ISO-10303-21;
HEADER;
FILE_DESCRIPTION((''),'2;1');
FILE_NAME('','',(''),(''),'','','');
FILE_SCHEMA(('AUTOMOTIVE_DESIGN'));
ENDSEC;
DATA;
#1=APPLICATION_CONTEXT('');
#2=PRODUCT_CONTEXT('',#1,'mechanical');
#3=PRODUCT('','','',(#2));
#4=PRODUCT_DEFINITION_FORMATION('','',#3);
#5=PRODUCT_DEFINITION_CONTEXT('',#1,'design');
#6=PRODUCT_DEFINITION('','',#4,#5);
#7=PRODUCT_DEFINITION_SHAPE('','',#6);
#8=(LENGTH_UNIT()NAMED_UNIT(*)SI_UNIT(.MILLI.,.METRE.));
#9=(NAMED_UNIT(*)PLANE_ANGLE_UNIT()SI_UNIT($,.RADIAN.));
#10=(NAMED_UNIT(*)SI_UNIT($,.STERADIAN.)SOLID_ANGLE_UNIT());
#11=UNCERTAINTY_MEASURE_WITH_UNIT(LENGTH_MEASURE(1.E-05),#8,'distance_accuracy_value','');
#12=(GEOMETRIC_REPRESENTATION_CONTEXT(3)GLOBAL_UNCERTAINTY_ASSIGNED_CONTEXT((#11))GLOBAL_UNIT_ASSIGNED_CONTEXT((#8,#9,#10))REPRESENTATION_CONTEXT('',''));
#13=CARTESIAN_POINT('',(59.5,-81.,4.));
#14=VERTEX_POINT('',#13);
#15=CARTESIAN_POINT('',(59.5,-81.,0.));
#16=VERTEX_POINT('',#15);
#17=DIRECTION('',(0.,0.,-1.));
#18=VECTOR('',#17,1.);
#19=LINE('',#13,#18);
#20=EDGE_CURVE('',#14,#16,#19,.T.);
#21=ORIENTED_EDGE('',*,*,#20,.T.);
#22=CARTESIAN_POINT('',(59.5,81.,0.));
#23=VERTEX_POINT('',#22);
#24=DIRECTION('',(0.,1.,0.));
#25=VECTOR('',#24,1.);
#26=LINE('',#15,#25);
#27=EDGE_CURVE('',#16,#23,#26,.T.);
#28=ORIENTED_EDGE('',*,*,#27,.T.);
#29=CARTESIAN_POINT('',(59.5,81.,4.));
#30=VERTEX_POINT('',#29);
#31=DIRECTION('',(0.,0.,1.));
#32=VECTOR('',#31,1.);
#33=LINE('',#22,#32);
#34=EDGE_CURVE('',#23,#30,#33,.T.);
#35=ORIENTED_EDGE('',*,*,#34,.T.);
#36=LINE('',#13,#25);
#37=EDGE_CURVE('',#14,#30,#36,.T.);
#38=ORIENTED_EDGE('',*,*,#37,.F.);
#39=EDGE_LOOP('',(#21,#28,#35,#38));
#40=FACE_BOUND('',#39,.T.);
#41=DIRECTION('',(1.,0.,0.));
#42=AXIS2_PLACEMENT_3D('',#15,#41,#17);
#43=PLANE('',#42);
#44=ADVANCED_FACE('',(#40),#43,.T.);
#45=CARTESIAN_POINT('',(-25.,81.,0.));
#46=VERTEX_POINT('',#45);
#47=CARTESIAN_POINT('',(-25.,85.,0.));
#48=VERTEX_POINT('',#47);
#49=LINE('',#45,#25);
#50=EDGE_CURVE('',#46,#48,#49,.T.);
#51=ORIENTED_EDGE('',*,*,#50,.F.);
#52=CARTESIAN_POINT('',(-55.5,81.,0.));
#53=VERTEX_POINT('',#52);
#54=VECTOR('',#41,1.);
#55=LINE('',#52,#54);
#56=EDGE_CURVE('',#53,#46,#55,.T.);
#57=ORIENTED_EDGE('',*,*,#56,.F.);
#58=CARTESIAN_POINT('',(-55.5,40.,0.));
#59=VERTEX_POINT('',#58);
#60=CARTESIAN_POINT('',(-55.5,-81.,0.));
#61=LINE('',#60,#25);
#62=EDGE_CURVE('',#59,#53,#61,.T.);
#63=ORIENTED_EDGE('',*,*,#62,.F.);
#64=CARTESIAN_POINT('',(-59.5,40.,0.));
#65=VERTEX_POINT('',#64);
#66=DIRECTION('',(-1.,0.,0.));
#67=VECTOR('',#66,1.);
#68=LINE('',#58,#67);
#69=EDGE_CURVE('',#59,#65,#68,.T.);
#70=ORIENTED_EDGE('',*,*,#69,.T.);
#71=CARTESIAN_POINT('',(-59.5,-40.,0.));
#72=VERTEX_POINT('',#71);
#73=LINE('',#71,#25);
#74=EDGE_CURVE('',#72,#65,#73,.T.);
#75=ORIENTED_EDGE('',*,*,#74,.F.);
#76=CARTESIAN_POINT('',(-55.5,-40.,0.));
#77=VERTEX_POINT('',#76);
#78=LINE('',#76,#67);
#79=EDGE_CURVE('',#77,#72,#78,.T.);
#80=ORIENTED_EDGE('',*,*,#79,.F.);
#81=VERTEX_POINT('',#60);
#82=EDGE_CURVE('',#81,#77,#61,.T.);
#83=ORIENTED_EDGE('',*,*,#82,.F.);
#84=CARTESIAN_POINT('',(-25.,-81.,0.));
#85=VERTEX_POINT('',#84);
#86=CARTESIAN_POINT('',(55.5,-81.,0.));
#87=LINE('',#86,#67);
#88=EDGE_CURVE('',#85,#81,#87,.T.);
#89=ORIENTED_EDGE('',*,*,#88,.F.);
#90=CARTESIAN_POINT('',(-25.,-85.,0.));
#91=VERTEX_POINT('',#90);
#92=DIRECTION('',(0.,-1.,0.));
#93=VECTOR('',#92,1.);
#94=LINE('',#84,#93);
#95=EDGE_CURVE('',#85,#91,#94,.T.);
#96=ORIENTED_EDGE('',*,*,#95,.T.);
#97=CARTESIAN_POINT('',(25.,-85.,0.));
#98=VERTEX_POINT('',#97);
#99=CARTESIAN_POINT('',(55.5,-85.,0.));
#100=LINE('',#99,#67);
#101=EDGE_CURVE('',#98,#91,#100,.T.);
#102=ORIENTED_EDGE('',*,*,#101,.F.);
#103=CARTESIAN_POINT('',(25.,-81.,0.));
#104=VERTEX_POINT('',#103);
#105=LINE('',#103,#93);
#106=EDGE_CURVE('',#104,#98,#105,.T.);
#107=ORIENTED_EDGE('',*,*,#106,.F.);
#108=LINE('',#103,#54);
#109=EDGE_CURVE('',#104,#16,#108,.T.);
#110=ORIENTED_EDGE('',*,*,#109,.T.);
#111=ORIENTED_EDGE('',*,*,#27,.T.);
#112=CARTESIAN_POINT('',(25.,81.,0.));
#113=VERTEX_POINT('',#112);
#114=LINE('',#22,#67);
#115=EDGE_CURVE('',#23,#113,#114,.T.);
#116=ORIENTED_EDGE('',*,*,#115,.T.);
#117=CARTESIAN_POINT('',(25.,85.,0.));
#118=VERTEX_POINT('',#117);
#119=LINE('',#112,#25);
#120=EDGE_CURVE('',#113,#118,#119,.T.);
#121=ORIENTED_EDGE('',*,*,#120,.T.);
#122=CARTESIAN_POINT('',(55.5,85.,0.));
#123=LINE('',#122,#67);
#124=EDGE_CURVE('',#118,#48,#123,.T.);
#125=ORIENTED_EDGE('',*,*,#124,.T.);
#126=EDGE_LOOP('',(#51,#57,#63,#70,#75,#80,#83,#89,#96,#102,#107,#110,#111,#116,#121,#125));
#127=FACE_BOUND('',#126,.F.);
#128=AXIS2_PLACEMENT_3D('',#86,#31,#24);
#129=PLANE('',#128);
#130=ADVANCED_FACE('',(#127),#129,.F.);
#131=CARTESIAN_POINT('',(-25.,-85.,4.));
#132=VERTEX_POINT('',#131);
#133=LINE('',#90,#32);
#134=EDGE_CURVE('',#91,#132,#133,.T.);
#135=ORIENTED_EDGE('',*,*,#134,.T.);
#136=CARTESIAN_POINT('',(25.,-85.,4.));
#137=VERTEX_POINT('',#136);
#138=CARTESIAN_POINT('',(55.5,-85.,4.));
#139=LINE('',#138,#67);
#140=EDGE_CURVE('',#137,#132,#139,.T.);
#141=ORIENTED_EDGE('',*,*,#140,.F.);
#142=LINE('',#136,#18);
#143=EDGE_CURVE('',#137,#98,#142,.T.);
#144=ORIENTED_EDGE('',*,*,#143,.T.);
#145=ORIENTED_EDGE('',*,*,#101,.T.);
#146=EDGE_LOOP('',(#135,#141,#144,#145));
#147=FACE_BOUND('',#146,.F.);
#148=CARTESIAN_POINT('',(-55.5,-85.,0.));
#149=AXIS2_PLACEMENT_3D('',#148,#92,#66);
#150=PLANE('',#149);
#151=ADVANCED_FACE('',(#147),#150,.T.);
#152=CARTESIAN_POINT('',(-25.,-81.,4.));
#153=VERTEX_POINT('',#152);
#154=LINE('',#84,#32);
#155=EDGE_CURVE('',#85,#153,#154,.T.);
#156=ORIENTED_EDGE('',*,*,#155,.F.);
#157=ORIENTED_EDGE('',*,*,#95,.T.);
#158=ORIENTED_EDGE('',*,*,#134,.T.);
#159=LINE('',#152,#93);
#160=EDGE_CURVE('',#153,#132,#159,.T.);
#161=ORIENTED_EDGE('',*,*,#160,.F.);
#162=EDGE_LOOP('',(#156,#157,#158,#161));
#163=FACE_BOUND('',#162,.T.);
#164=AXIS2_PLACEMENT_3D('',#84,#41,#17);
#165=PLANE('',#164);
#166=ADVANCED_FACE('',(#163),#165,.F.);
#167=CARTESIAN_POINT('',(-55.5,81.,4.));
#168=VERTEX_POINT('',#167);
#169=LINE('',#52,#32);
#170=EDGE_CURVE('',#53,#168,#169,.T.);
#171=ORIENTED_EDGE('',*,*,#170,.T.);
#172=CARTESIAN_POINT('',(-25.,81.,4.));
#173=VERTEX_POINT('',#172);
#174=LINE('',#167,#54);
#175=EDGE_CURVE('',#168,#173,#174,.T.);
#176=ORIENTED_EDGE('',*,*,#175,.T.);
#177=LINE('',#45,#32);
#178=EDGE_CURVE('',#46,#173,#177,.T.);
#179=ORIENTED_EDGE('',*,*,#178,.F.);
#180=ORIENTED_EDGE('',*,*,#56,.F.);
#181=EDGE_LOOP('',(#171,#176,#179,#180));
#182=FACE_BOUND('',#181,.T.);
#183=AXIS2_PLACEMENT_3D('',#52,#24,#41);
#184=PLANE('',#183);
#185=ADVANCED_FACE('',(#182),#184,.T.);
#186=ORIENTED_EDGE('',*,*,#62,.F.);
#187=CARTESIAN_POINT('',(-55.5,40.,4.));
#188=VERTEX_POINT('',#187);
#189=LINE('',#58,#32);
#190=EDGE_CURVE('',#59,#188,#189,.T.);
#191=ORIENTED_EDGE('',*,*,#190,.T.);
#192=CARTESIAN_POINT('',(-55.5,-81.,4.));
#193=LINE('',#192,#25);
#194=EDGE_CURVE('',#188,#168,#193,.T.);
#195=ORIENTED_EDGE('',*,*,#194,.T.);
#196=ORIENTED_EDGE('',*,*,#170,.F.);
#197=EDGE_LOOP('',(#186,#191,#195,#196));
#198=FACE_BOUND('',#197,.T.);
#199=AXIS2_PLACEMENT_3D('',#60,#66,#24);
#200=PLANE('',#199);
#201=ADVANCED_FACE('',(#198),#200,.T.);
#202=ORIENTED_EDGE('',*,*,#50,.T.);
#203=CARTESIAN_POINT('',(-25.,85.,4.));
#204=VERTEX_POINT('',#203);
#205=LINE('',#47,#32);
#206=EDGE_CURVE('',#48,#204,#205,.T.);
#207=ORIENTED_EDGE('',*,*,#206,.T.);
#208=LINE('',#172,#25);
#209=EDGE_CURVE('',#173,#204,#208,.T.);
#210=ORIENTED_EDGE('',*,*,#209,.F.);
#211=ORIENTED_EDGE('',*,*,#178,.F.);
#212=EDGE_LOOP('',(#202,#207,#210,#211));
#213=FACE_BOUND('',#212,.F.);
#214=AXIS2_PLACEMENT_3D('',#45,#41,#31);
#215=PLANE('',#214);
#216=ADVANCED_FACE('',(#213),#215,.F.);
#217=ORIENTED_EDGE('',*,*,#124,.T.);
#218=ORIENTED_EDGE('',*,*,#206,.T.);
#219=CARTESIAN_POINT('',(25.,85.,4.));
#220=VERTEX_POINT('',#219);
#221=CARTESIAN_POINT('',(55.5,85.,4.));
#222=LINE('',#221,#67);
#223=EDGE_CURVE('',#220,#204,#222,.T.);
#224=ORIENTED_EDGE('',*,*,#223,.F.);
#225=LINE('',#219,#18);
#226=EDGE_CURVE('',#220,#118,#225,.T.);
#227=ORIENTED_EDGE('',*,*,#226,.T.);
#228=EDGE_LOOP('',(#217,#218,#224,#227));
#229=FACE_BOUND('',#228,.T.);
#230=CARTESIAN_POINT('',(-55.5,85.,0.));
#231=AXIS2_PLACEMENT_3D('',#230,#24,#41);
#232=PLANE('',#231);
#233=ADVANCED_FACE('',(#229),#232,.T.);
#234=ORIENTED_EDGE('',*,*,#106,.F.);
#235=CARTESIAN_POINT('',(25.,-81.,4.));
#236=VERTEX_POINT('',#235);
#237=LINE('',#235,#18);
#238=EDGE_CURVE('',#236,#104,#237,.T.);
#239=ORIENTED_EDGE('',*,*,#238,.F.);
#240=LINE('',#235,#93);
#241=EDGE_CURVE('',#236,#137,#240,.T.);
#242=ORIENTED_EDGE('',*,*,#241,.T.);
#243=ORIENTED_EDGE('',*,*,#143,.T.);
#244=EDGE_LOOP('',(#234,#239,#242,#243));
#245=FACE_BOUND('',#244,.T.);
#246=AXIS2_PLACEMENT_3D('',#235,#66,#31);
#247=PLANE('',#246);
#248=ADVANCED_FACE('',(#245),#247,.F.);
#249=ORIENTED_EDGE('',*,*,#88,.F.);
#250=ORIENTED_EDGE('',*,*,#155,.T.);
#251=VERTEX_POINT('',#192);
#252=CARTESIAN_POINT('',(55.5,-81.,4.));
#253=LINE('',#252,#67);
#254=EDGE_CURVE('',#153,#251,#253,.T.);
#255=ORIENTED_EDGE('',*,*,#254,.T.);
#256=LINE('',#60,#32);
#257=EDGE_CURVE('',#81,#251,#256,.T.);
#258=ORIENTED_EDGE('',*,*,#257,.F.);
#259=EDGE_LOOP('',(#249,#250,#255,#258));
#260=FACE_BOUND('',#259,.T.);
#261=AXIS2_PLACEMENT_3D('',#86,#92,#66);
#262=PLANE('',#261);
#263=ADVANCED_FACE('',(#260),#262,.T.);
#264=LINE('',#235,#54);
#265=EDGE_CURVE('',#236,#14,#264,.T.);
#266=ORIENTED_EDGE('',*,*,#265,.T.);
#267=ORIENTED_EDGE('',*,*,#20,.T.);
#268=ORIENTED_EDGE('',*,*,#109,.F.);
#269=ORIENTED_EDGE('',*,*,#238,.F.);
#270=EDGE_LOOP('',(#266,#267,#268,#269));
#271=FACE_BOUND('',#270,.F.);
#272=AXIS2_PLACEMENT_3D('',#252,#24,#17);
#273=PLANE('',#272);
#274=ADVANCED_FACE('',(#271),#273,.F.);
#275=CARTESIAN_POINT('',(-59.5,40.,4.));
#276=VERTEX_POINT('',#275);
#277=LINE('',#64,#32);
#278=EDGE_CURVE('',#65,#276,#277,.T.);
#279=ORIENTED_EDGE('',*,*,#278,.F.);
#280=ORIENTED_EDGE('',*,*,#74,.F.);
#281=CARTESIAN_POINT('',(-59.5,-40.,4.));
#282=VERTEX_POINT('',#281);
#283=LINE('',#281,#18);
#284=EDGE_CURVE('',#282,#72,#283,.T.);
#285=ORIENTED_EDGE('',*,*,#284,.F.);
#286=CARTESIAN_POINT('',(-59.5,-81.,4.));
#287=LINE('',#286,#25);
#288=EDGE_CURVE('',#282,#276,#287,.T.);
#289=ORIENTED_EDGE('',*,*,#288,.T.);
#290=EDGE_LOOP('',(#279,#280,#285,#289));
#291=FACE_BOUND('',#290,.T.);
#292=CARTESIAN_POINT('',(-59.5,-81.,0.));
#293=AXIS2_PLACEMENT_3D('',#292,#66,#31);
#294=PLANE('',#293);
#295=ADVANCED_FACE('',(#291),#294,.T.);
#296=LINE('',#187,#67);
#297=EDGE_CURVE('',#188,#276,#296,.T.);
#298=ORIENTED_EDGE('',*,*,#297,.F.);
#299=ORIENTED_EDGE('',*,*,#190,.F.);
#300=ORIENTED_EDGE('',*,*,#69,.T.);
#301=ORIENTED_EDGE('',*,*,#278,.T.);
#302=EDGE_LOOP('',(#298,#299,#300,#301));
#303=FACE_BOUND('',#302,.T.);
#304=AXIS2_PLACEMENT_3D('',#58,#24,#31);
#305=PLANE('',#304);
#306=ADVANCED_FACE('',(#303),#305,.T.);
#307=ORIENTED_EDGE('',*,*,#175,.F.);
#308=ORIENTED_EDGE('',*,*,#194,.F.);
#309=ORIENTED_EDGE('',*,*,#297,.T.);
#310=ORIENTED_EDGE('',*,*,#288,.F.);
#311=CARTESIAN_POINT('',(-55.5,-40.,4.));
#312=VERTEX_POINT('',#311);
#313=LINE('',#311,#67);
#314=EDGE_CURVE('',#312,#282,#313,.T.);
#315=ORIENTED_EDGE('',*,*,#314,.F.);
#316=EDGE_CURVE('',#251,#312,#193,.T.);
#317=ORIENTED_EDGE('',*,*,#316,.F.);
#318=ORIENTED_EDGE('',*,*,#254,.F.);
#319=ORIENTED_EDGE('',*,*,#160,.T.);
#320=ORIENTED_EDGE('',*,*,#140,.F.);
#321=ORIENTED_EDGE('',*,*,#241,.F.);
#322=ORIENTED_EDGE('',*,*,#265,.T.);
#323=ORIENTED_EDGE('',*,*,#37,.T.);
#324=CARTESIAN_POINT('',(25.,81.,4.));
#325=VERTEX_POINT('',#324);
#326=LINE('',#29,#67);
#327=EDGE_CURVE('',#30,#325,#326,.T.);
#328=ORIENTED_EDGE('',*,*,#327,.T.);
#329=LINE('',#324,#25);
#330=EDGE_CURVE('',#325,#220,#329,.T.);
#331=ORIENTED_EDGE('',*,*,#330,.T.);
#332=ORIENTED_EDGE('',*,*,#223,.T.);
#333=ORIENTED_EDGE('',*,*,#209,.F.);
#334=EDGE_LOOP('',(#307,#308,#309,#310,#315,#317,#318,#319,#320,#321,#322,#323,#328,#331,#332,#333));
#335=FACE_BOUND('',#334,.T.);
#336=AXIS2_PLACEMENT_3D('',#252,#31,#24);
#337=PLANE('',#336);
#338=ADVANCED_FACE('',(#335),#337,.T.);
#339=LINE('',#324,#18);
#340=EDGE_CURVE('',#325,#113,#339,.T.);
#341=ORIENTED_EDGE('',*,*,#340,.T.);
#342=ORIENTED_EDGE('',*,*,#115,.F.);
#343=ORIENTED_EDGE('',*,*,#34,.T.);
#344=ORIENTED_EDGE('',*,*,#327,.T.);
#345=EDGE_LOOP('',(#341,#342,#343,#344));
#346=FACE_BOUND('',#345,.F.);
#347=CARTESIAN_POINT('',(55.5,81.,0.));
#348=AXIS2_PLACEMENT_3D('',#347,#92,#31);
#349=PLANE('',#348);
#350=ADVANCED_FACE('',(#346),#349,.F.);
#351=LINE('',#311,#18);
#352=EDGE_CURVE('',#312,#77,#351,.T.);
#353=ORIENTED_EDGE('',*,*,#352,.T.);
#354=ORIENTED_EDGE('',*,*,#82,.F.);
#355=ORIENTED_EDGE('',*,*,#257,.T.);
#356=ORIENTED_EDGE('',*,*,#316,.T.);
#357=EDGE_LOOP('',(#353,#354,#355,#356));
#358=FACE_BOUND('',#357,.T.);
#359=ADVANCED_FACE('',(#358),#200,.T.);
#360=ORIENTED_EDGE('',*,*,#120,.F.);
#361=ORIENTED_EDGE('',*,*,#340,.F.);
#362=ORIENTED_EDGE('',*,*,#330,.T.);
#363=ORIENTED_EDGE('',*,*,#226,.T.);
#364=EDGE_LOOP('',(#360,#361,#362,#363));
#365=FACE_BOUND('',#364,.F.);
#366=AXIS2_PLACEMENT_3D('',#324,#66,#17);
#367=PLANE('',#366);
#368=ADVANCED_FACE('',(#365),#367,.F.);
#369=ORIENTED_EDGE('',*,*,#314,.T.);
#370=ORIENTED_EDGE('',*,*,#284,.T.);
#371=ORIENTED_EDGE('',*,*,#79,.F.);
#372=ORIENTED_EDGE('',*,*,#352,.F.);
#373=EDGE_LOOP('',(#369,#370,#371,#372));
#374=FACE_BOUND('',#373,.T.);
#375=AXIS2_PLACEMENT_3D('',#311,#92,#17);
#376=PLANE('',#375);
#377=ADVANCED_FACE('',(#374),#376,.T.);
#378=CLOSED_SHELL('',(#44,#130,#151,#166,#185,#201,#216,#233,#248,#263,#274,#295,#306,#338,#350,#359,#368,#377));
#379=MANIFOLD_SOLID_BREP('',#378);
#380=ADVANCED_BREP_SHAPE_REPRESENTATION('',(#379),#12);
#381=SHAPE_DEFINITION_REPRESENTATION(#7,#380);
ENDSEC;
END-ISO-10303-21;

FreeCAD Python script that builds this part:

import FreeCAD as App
import Part
import Sketcher
from FreeCAD import Vector


def add_polygon(sketch, points):
    """Adds a closed chain of lines whose ends are joined by coincident constraints."""
    first, n = sketch.GeometryCount, len(points)
    for a, b in zip(points, points[1:] + points[:1]):
        sketch.addGeometry(Part.LineSegment(App.Vector(*a, 0), App.Vector(*b, 0)), False)
    for i in range(n):
        sketch.addConstraint(Sketcher.Constraint("Coincident", first + i, 2, first + (i + 1) % n, 1))

doc = App.newDocument("Part")
body = doc.addObject("PartDesign::Body", "Body")

sketch1 = body.newObject("Sketcher::SketchObject", "Sketch")
sketch1.AttachmentSupport = (doc.getObject("XY_Plane"), [""])
sketch1.MapMode = "FlatFace"
add_polygon(sketch1, [(55.5, 81), (-55.5, 81), (-55.5, -81), (55.5, -81)])
sketch1.addConstraint([
    Sketcher.Constraint("Horizontal", 0),
    Sketcher.Constraint("Vertical", 1),
    Sketcher.Constraint("Horizontal", 2),
    Sketcher.Constraint("Vertical", 3),
    Sketcher.Constraint("Symmetric", 0, 2, 2, 2, -1, 1),
    Sketcher.Constraint("DistanceX", 0, 2, 0, 1, 111.0),
    Sketcher.Constraint("DistanceY", 1, 2, 1, 1, 162.0),
])
pad1 = body.newObject("PartDesign::Pad", "Pad")
pad1.Profile = sketch1
pad1.Length = 4

sketch2 = body.newObject("Sketcher::SketchObject", "Sketch001")
sketch2.AttachmentSupport = (doc.getObject("YZ_Plane"), [""])
sketch2.MapMode = "FlatFace"
sketch2.AttachmentOffset = App.Placement(Vector(0, 0, -55.5), App.Rotation())
add_polygon(sketch2, [(-40, 0), (-40, 4), (40, 4), (40, 0)])
sketch2.addConstraint([
    Sketcher.Constraint("Vertical", 0),
    Sketcher.Constraint("Horizontal", 1),
    Sketcher.Constraint("Vertical", 2),
    Sketcher.Constraint("Horizontal", 3),
    Sketcher.Constraint("Symmetric", 2, 2, 3, 2, -1, 1),
    Sketcher.Constraint("DistanceX", 1, 1, 1, 2, 80.0),
    Sketcher.Constraint("DistanceY", 0, 1, 0, 2, 4.0),
])
pad2 = body.newObject("PartDesign::Pad", "Pad001")
pad2.Profile = sketch2
pad2.Length = 4
pad2.Reversed = True

sketch3 = body.newObject("Sketcher::SketchObject", "Sketch002")
sketch3.AttachmentSupport = (doc.getObject("XZ_Plane"), [""])
sketch3.MapMode = "FlatFace"
sketch3.AttachmentOffset = App.Placement(Vector(0, 0, -81), App.Rotation())
add_polygon(sketch3, [(-25, 4), (25, 4), (25, 0), (-25, 0)])
sketch3.addConstraint([
    Sketcher.Constraint("Horizontal", 0),
    Sketcher.Constraint("Vertical", 1),
    Sketcher.Constraint("Horizontal", 2),
    Sketcher.Constraint("Vertical", 3),
    Sketcher.Constraint("Symmetric", 1, 2, 2, 2, -1, 1),
    Sketcher.Constraint("DistanceX", 0, 1, 0, 2, 50.0),
    Sketcher.Constraint("DistanceY", 1, 2, 1, 1, 4.0),
])
pad3 = body.newObject("PartDesign::Pad", "Pad002")
pad3.Profile = sketch3
pad3.Length = 4
pad3.Reversed = True
doc.recompute()

mirrored = body.newObject("PartDesign::Mirrored", "Mirrored")
mirrored.Originals = [pad3]
mirrored.MirrorPlane = (doc.getObject("XZ_Plane"), [""])
body.Tip = mirrored

sketch4 = body.newObject("Sketcher::SketchObject", "Sketch003")
sketch4.AttachmentSupport = (doc.getObject("YZ_Plane"), [""])
sketch4.MapMode = "FlatFace"
sketch4.AttachmentOffset = App.Placement(Vector(0, 0, 55.5), App.Rotation())
add_polygon(sketch4, [(81, 4), (-81, 4), (-81, 0), (81, 0)])
sketch4.addConstraint([
    Sketcher.Constraint("Horizontal", 0),
    Sketcher.Constraint("Vertical", 1),
    Sketcher.Constraint("Horizontal", 2),
    Sketcher.Constraint("Vertical", 3),
    Sketcher.Constraint("Symmetric", 1, 2, 2, 2, -1, 1),
    Sketcher.Constraint("DistanceX", 0, 2, 0, 1, 162.0),
    Sketcher.Constraint("DistanceY", 1, 2, 1, 1, 4.0),
])
pad4 = body.newObject("PartDesign::Pad", "Pad003")
pad4.Profile = sketch4
pad4.Length = 4

doc.recompute()
